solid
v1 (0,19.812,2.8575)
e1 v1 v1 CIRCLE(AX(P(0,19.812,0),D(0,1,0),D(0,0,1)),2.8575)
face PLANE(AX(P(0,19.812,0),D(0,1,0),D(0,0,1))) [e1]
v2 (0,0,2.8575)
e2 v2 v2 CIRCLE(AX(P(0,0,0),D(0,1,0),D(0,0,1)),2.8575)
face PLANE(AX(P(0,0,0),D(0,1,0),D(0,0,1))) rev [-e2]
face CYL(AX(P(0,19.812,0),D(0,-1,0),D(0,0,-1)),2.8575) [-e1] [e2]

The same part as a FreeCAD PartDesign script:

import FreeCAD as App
import Part
import Sketcher
Q = App.Units.Quantity

doc = App.newDocument("Part")
body = doc.addObject("PartDesign::Body", "Body")

# Sketch on XZ plane
sketch1 = doc.addObject("Sketcher::SketchObject", "Sketch")
body.addObject(sketch1)
sketch1.AttachmentSupport = (doc.XZ_Plane, [""])
sketch1.MapMode = "FlatFace"
sketch1.addGeometry(Part.Circle(App.Vector(0, 0, 0), App.Vector(0, 0, 1), 2.9), False)
sketch1.addConstraint(Sketcher.Constraint("Coincident", 0, 3, -1, 1))
sketch1.addConstraint(Sketcher.Constraint("Diameter", 0, Q("0.225 in")))
pad1 = doc.addObject("PartDesign::Pad", "Pad")
body.addObject(pad1)
pad1.Profile = sketch1
pad1.Length = Q("0.78 in")
pad1.Reversed = True

doc.recompute()
